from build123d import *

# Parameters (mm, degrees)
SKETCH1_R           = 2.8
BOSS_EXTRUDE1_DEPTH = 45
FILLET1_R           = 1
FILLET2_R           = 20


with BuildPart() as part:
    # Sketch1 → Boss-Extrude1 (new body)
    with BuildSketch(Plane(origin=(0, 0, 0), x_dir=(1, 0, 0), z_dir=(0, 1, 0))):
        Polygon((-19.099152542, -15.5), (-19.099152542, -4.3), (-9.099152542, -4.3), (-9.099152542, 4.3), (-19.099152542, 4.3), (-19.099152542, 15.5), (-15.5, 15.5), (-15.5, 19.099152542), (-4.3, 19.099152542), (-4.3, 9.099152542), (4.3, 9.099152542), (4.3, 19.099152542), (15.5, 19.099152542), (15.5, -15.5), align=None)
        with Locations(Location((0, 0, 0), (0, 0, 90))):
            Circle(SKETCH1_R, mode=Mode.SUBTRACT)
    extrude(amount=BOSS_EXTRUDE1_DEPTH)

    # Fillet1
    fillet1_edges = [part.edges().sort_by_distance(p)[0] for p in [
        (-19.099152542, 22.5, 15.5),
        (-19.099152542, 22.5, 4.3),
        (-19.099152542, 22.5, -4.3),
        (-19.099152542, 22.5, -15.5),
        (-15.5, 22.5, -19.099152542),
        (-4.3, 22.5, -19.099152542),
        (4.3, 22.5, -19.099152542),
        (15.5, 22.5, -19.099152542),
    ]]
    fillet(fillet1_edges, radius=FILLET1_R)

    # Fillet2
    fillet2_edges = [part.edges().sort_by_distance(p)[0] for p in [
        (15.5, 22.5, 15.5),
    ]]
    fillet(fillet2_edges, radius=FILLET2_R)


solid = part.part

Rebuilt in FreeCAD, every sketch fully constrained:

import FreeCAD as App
import Part
import Sketcher
Q = App.Units.Quantity


def edges_at(feature, points):
    """Names of the edges that pass closest to the given points."""
    edges = feature.Shape.Edges
    near = lambda p: min(range(len(edges)), key=lambda i: edges[i].distToShape(Part.Vertex(*p))[0])
    return sorted({f"Edge{near(p) + 1}" for p in points})


def add_polygon(sketch, points):
    """Adds a closed chain of lines whose ends are joined by coincident constraints."""
    first, n = sketch.GeometryCount, len(points)
    for a, b in zip(points, points[1:] + points[:1]):
        sketch.addGeometry(Part.LineSegment(App.Vector(*a, 0), App.Vector(*b, 0)), False)
    for i in range(n):
        sketch.addConstraint(Sketcher.Constraint("Coincident", first + i, 2, first + (i + 1) % n, 1))

doc = App.newDocument("Part")
body = doc.addObject("PartDesign::Body", "Body")

sketch1 = body.newObject("Sketcher::SketchObject", "Sketch")
sketch1.AttachmentSupport = (doc.getObject("XZ_Plane"), [""])
sketch1.MapMode = "FlatFace"
add_polygon(sketch1, [(-19.1, 4.3), (-19.1, 15.5), (15.5, 15.5), (15.5, -19.1), (4.3, -19.1), (4.3, -9.1), (-4.3, -9.1), (-4.3, -19.1), (-15.5, -19.1), (-15.5, -15.5), (-19.1, -15.5), (-19.1, -4.3), (-9.1, -4.3), (-9.1, 4.3)])
sketch1.addGeometry(Part.Circle(App.Vector(0, 0, 0), App.Vector(0, 0, 1), 2.8), False)
sketch1.addConstraint(Sketcher.Constraint("Vertical", 0))
sketch1.addConstraint(Sketcher.Constraint("Horizontal", 1))
sketch1.addConstraint(Sketcher.Constraint("Vertical", 2))
sketch1.addConstraint(Sketcher.Constraint("Horizontal", 3))
sketch1.addConstraint(Sketcher.Constraint("Vertical", 4))
sketch1.addConstraint(Sketcher.Constraint("Horizontal", 5))
sketch1.addConstraint(Sketcher.Constraint("Vertical", 6))
sketch1.addConstraint(Sketcher.Constraint("Horizontal", 7))
sketch1.addConstraint(Sketcher.Constraint("Vertical", 8))
sketch1.addConstraint(Sketcher.Constraint("Horizontal", 9))
sketch1.addConstraint(Sketcher.Constraint("Vertical", 10))
sketch1.addConstraint(Sketcher.Constraint("Horizontal", 11))
sketch1.addConstraint(Sketcher.Constraint("Vertical", 12))
sketch1.addConstraint(Sketcher.Constraint("Horizontal", 13))
sketch1.addConstraint(Sketcher.Constraint("Coincident", 14, 3, -1, 1))
sketch1.addConstraint(Sketcher.Constraint("Symmetric", 1, 2, 8, 2, -1, 1))
sketch1.addConstraint(Sketcher.Constraint("Symmetric", 3, 2, 6, 2, -2))
sketch1.addConstraint(Sketcher.Constraint("Symmetric", 10, 2, 13, 2, -1))
sketch1.addConstraint(Sketcher.Constraint("Equal", 7, 0))
sketch1.addConstraint(Sketcher.Constraint("Equal", 1, 2))
sketch1.addConstraint(Sketcher.Constraint("Equal", 13, 4))
sketch1.addConstraint(Sketcher.Constraint("Equal", 9, 8))
sketch1.addConstraint(Sketcher.Constraint("Diameter", 14, Q("5.6 mm")))
sketch1.addConstraint(Sketcher.Constraint("DistanceX", 11, 1, 11, 2, Q("10 mm")))
sketch1.addConstraint(Sketcher.Constraint("DistanceX", 3, 2, 3, 1, Q("11.2 mm")))
sketch1.addConstraint(Sketcher.Constraint("DistanceX", 5, 2, 5, 1, Q("8.6 mm")))
sketch1.addConstraint(Sketcher.Constraint("DistanceX", 1, 1, 1, 2, Q("34.599153 mm")))
pad1 = body.newObject("PartDesign::Pad", "Pad")
pad1.Profile = sketch1
pad1.Length = 45
pad1.Reversed = True
doc.recompute()

fillet = body.newObject("PartDesign::Fillet", "Fillet")
fillet.Base = (pad1, edges_at(pad1, [
    (-19.099, 22.5, 15.5),
    (-19.099, 22.5, 4.3),
    (-19.099, 22.5, -4.3),
    (-19.099, 22.5, -15.5),
    (-15.5, 22.5, -19.099),
    (-4.3, 22.5, -19.099),
    (4.3, 22.5, -19.099),
    (15.5, 22.5, -19.099),
]))
fillet.Radius = 1
doc.recompute()

fillet2 = body.newObject("PartDesign::Fillet", "Fillet001")
fillet2.Base = (fillet, edges_at(fillet, [(15.5, 22.5, 15.5)]))
fillet2.Radius = 20

doc.recompute()
